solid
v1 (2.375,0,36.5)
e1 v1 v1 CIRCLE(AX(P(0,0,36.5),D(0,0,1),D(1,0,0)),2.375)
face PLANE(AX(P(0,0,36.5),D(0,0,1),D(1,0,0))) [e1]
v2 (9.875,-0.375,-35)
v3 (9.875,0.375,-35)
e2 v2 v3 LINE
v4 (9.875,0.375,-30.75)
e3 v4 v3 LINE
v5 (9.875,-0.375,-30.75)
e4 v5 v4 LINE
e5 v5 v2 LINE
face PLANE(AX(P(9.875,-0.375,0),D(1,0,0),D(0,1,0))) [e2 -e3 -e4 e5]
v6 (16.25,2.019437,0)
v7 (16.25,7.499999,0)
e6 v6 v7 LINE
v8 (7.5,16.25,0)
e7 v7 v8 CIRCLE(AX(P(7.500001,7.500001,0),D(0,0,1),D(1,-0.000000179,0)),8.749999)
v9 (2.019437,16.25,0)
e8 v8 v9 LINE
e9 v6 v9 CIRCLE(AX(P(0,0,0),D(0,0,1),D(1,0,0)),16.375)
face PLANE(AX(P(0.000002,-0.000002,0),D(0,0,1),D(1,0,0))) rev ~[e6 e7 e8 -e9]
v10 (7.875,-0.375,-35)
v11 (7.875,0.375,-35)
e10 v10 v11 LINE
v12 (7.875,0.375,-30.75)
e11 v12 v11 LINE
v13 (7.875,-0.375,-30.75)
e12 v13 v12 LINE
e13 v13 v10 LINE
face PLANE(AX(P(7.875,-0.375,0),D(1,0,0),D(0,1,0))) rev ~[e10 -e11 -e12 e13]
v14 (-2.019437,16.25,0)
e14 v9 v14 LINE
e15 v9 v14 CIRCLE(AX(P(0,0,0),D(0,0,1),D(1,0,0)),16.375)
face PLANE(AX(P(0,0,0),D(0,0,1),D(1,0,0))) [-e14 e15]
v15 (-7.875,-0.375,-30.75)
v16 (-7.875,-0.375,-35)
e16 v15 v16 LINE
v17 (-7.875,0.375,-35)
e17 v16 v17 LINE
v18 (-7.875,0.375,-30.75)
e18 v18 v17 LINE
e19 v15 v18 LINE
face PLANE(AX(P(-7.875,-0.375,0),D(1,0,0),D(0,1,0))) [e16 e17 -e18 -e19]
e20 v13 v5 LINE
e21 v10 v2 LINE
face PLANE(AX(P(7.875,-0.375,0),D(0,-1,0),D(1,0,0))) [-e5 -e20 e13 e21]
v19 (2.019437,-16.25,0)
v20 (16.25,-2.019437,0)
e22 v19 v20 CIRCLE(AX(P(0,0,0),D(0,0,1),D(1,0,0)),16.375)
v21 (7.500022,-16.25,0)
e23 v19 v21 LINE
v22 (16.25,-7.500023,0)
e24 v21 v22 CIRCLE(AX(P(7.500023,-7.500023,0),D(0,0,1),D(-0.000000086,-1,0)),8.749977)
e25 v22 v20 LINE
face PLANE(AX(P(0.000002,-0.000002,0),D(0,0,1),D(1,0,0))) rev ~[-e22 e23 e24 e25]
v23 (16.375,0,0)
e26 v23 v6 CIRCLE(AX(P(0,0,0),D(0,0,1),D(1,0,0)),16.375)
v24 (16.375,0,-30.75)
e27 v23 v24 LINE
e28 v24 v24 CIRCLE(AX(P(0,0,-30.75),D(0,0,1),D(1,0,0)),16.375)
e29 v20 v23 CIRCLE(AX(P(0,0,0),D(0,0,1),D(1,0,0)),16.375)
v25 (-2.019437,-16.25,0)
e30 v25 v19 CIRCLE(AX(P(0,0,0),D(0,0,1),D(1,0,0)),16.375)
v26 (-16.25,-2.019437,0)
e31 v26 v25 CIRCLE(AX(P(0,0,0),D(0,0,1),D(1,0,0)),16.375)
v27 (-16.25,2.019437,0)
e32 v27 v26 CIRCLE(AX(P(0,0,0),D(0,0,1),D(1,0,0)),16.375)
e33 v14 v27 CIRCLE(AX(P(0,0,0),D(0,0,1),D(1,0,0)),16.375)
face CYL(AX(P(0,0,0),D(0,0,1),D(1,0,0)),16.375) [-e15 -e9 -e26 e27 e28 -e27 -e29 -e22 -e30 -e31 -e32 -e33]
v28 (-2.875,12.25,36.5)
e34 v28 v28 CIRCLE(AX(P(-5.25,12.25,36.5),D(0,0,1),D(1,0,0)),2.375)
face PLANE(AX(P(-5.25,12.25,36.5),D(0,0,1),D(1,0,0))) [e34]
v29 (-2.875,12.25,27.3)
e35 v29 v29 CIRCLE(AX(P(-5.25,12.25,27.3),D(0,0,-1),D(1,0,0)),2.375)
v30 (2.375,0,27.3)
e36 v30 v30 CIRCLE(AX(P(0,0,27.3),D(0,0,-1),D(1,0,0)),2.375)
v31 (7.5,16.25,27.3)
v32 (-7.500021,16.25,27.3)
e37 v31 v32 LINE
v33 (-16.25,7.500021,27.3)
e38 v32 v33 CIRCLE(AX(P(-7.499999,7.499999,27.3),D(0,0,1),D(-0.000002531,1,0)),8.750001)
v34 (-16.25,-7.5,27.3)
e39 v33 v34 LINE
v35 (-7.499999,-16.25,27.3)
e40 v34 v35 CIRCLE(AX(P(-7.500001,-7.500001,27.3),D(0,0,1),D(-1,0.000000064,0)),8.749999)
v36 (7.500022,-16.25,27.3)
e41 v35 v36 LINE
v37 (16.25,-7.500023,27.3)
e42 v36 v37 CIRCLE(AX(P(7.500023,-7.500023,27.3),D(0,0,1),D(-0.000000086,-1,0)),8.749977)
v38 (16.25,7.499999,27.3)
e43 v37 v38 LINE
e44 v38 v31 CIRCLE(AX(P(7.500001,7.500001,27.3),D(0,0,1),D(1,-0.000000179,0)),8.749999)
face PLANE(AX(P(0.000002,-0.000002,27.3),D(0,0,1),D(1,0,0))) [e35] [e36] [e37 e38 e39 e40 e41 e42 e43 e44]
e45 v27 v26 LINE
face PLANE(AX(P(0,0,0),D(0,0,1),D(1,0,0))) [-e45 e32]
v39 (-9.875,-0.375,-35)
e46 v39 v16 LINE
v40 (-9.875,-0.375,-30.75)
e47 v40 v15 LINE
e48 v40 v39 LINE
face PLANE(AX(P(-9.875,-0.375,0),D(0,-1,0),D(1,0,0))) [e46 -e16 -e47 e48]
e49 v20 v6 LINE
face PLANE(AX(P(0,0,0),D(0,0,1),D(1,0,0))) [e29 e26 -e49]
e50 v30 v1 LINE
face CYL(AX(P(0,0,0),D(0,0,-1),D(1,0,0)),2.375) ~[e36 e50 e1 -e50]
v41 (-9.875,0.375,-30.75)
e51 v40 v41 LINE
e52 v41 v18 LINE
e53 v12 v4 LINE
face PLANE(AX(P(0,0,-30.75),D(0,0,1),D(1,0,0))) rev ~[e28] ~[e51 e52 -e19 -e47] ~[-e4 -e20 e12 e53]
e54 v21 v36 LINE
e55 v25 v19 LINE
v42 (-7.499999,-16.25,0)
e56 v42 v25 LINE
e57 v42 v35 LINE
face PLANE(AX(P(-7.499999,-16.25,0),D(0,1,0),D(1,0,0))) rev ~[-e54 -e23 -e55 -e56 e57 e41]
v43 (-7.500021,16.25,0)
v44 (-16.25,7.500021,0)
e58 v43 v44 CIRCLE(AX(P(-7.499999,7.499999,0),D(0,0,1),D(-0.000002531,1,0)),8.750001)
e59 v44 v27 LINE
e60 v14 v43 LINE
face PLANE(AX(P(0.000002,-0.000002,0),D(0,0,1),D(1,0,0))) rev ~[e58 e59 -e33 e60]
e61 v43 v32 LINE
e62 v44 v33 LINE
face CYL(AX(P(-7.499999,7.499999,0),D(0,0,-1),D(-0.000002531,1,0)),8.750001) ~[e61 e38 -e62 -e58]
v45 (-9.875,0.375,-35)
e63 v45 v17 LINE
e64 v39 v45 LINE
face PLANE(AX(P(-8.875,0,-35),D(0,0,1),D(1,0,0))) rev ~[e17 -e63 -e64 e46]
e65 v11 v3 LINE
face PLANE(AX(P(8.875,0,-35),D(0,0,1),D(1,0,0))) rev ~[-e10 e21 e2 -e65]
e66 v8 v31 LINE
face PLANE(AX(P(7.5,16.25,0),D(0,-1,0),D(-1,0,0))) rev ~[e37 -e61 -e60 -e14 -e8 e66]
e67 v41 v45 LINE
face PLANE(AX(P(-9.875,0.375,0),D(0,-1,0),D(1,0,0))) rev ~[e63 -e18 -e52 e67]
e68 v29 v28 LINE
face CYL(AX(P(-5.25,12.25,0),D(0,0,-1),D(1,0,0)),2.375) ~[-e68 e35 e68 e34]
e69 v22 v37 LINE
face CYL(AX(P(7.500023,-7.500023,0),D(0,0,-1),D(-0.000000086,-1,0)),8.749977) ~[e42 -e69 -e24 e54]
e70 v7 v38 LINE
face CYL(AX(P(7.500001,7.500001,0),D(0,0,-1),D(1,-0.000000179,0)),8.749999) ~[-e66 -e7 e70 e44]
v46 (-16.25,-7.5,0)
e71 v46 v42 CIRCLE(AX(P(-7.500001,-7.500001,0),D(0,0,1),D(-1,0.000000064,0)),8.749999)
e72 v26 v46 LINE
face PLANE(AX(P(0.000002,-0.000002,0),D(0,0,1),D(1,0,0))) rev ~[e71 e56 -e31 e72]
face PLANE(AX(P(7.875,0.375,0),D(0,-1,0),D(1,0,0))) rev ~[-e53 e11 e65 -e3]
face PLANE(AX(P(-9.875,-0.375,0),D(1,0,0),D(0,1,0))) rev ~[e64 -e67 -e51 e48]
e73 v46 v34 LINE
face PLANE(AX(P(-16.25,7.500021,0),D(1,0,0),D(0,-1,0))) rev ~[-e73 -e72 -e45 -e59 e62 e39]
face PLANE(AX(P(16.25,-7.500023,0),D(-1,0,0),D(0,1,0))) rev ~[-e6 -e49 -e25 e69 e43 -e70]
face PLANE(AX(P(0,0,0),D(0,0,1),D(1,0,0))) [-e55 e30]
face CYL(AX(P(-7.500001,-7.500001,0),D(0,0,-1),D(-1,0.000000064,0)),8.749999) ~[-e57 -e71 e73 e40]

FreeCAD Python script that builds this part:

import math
import FreeCAD as App
import Part
import Sketcher
from FreeCAD import Vector
Q = App.Units.Quantity


def add_polygon(sketch, points):
    """Adds a closed chain of lines whose ends are joined by coincident constraints."""
    first, n = sketch.GeometryCount, len(points)
    for a, b in zip(points, points[1:] + points[:1]):
        sketch.addGeometry(Part.LineSegment(App.Vector(*a, 0), App.Vector(*b, 0)), False)
    for i in range(n):
        sketch.addConstraint(Sketcher.Constraint("Coincident", first + i, 2, first + (i + 1) % n, 1))

doc = App.newDocument("Part")
body = doc.addObject("PartDesign::Body", "Body")

# Sketch on XY plane
sketch1 = body.newObject("Sketcher::SketchObject", "Sketch")
sketch1.AttachmentSupport = (doc.getObject("XY_Plane"), [""])
sketch1.MapMode = "FlatFace"
sketch1.addGeometry(Part.LineSegment(Vector(-16, 8, 0), Vector(-16, -8, 0)), False)
sketch1.addGeometry(Part.ArcOfCircle(Part.Circle(Vector(-8, -8, 0), Vector(0, 0, 1), 9), math.radians(180), math.radians(270)), False)
sketch1.addGeometry(Part.LineSegment(Vector(-7, -16, 0), Vector(8, -16, 0)), False)
sketch1.addGeometry(Part.ArcOfCircle(Part.Circle(Vector(8, -8, 0), Vector(0, 0, 1), 9), math.radians(-90), math.radians(0)), False)
sketch1.addGeometry(Part.LineSegment(Vector(16, -8, 0), Vector(16, 7, 0)), False)
sketch1.addGeometry(Part.ArcOfCircle(Part.Circle(Vector(8, 8, 0), Vector(0, 0, 1), 9), math.radians(0), math.radians(90)), False)
sketch1.addGeometry(Part.LineSegment(Vector(8, 16, 0), Vector(-8, 16, 0)), False)
sketch1.addGeometry(Part.ArcOfCircle(Part.Circle(Vector(-7, 7, 0), Vector(0, 0, 1), 9), math.radians(90), math.radians(180)), False)
sketch1.addConstraint(Sketcher.Constraint("Tangent", 0, 2, 1, 1))
sketch1.addConstraint(Sketcher.Constraint("Tangent", 1, 2, 2, 1))
sketch1.addConstraint(Sketcher.Constraint("Tangent", 2, 2, 3, 1))
sketch1.addConstraint(Sketcher.Constraint("Tangent", 3, 2, 4, 1))
sketch1.addConstraint(Sketcher.Constraint("Tangent", 4, 2, 5, 1))
sketch1.addConstraint(Sketcher.Constraint("Tangent", 5, 2, 6, 1))
sketch1.addConstraint(Sketcher.Constraint("Coincident", 6, 2, 7, 1))
sketch1.addConstraint(Sketcher.Constraint("Coincident", 7, 2, 0, 1))
sketch1.addConstraint(Sketcher.Constraint("Vertical", 0))
sketch1.addConstraint(Sketcher.Constraint("Horizontal", 2))
sketch1.addConstraint(Sketcher.Constraint("Vertical", 4))
sketch1.addConstraint(Sketcher.Constraint("Horizontal", 6))
sketch1.addConstraint(Sketcher.Constraint("Equal", 1, 5))
sketch1.addConstraint(Sketcher.Constraint("Equal", 5, 7))
sketch1.addConstraint(Sketcher.Constraint("Symmetric", 1, 3, 5, 3, -1, 1))
sketch1.addConstraint(Sketcher.Constraint("Equal", 2, 6))
sketch1.addConstraint(Sketcher.Constraint("Equal", 6, 0))
sketch1.addConstraint(Sketcher.Constraint("Equal", 0, 4))
sketch1.addConstraint(Sketcher.Constraint("Radius", 1, Q("8.749999 mm")))
sketch1.addConstraint(Sketcher.Constraint("DistanceX", 1, 3, 5, 3, Q("15.000001 mm")))
sketch1.addConstraint(Sketcher.Constraint("Radius", 3, Q("8.749977 mm")))
pad1 = body.newObject("PartDesign::Pad", "Pad")
pad1.Profile = sketch1
pad1.Length = 27.3

# Sketch on XY plane
sketch2 = body.newObject("Sketcher::SketchObject", "Sketch001")
sketch2.AttachmentSupport = (doc.getObject("XY_Plane"), [""])
sketch2.MapMode = "FlatFace"
sketch2.addGeometry(Part.Circle(Vector(0, 0, 0), Vector(0, 0, 1), 16), False)
sketch2.addConstraint(Sketcher.Constraint("Coincident", 0, 3, -1, 1))
sketch2.addConstraint(Sketcher.Constraint("Diameter", 0, Q("32.75 mm")))
pad2 = body.newObject("PartDesign::Pad", "Pad001")
pad2.Profile = sketch2
pad2.Length = 30.75
pad2.Reversed = True

# Sketch on XY plane
sketch3 = body.newObject("Sketcher::SketchObject", "Sketch002")
sketch3.AttachmentSupport = (doc.getObject("XY_Plane"), [""])
sketch3.MapMode = "FlatFace"
sketch3.addGeometry(Part.Circle(Vector(0, 0, 0), Vector(0, 0, 1), 2.4), False)
sketch3.addGeometry(Part.Circle(Vector(-5.2, 12.2, 0), Vector(0, 0, 1), 2.4), False)
sketch3.addConstraint(Sketcher.Constraint("Coincident", 0, 3, -1, 1))
sketch3.addConstraint(Sketcher.Constraint("Equal", 0, 1))
sketch3.addConstraint(Sketcher.Constraint("Diameter", 0, Q("4.75 mm")))
sketch3.addConstraint(Sketcher.Constraint("DistanceX", 1, 3, -1, 1, Q("5.25 mm")))
sketch3.addConstraint(Sketcher.Constraint("DistanceY", -1, 1, 1, 3, Q("12.25 mm")))
pad3 = body.newObject("PartDesign::Pad", "Pad002")
pad3.Profile = sketch3
pad3.Length = 36.5

# Sketch on XY plane
sketch4 = body.newObject("Sketcher::SketchObject", "Sketch003")
sketch4.AttachmentSupport = (doc.getObject("XY_Plane"), [""])
sketch4.MapMode = "FlatFace"
add_polygon(sketch4, [(-9.9, 0.4), (-9.9, -0.4), (-7.9, -0.4), (-7.9, 0.4)])  # lines 0-3
add_polygon(sketch4, [(7.9, 0.4), (7.9, -0.4), (9.9, -0.4), (9.9, 0.4)])  # lines 4-7
sketch4.addConstraint(Sketcher.Constraint("Vertical", 0))
sketch4.addConstraint(Sketcher.Constraint("Horizontal", 1))
sketch4.addConstraint(Sketcher.Constraint("Vertical", 2))
sketch4.addConstraint(Sketcher.Constraint("Horizontal", 3))
sketch4.addConstraint(Sketcher.Constraint("Vertical", 4))
sketch4.addConstraint(Sketcher.Constraint("Horizontal", 5))
sketch4.addConstraint(Sketcher.Constraint("Vertical", 6))
sketch4.addConstraint(Sketcher.Constraint("Horizontal", 7))
sketch4.addConstraint(Sketcher.Constraint("Symmetric", 2, 2, 4, 2, -1, 1))
sketch4.addConstraint(Sketcher.Constraint("Symmetric", 0, 2, 6, 2, -1, 1))
sketch4.addConstraint(Sketcher.Constraint("Horizontal", 1, 2, 4, 2))
sketch4.addConstraint(Sketcher.Constraint("DistanceX", 1, 1, 1, 2, Q("2 mm")))
sketch4.addConstraint(Sketcher.Constraint("DistanceY", 0, 2, 0, 1, Q("0.75 mm")))
sketch4.addConstraint(Sketcher.Constraint("DistanceX", 1, 2, 4, 2, Q("15.75 mm")))
pad4 = body.newObject("PartDesign::Pad", "Pad003")
pad4.Profile = sketch4
pad4.Length = 35
pad4.Reversed = True

doc.recompute()
